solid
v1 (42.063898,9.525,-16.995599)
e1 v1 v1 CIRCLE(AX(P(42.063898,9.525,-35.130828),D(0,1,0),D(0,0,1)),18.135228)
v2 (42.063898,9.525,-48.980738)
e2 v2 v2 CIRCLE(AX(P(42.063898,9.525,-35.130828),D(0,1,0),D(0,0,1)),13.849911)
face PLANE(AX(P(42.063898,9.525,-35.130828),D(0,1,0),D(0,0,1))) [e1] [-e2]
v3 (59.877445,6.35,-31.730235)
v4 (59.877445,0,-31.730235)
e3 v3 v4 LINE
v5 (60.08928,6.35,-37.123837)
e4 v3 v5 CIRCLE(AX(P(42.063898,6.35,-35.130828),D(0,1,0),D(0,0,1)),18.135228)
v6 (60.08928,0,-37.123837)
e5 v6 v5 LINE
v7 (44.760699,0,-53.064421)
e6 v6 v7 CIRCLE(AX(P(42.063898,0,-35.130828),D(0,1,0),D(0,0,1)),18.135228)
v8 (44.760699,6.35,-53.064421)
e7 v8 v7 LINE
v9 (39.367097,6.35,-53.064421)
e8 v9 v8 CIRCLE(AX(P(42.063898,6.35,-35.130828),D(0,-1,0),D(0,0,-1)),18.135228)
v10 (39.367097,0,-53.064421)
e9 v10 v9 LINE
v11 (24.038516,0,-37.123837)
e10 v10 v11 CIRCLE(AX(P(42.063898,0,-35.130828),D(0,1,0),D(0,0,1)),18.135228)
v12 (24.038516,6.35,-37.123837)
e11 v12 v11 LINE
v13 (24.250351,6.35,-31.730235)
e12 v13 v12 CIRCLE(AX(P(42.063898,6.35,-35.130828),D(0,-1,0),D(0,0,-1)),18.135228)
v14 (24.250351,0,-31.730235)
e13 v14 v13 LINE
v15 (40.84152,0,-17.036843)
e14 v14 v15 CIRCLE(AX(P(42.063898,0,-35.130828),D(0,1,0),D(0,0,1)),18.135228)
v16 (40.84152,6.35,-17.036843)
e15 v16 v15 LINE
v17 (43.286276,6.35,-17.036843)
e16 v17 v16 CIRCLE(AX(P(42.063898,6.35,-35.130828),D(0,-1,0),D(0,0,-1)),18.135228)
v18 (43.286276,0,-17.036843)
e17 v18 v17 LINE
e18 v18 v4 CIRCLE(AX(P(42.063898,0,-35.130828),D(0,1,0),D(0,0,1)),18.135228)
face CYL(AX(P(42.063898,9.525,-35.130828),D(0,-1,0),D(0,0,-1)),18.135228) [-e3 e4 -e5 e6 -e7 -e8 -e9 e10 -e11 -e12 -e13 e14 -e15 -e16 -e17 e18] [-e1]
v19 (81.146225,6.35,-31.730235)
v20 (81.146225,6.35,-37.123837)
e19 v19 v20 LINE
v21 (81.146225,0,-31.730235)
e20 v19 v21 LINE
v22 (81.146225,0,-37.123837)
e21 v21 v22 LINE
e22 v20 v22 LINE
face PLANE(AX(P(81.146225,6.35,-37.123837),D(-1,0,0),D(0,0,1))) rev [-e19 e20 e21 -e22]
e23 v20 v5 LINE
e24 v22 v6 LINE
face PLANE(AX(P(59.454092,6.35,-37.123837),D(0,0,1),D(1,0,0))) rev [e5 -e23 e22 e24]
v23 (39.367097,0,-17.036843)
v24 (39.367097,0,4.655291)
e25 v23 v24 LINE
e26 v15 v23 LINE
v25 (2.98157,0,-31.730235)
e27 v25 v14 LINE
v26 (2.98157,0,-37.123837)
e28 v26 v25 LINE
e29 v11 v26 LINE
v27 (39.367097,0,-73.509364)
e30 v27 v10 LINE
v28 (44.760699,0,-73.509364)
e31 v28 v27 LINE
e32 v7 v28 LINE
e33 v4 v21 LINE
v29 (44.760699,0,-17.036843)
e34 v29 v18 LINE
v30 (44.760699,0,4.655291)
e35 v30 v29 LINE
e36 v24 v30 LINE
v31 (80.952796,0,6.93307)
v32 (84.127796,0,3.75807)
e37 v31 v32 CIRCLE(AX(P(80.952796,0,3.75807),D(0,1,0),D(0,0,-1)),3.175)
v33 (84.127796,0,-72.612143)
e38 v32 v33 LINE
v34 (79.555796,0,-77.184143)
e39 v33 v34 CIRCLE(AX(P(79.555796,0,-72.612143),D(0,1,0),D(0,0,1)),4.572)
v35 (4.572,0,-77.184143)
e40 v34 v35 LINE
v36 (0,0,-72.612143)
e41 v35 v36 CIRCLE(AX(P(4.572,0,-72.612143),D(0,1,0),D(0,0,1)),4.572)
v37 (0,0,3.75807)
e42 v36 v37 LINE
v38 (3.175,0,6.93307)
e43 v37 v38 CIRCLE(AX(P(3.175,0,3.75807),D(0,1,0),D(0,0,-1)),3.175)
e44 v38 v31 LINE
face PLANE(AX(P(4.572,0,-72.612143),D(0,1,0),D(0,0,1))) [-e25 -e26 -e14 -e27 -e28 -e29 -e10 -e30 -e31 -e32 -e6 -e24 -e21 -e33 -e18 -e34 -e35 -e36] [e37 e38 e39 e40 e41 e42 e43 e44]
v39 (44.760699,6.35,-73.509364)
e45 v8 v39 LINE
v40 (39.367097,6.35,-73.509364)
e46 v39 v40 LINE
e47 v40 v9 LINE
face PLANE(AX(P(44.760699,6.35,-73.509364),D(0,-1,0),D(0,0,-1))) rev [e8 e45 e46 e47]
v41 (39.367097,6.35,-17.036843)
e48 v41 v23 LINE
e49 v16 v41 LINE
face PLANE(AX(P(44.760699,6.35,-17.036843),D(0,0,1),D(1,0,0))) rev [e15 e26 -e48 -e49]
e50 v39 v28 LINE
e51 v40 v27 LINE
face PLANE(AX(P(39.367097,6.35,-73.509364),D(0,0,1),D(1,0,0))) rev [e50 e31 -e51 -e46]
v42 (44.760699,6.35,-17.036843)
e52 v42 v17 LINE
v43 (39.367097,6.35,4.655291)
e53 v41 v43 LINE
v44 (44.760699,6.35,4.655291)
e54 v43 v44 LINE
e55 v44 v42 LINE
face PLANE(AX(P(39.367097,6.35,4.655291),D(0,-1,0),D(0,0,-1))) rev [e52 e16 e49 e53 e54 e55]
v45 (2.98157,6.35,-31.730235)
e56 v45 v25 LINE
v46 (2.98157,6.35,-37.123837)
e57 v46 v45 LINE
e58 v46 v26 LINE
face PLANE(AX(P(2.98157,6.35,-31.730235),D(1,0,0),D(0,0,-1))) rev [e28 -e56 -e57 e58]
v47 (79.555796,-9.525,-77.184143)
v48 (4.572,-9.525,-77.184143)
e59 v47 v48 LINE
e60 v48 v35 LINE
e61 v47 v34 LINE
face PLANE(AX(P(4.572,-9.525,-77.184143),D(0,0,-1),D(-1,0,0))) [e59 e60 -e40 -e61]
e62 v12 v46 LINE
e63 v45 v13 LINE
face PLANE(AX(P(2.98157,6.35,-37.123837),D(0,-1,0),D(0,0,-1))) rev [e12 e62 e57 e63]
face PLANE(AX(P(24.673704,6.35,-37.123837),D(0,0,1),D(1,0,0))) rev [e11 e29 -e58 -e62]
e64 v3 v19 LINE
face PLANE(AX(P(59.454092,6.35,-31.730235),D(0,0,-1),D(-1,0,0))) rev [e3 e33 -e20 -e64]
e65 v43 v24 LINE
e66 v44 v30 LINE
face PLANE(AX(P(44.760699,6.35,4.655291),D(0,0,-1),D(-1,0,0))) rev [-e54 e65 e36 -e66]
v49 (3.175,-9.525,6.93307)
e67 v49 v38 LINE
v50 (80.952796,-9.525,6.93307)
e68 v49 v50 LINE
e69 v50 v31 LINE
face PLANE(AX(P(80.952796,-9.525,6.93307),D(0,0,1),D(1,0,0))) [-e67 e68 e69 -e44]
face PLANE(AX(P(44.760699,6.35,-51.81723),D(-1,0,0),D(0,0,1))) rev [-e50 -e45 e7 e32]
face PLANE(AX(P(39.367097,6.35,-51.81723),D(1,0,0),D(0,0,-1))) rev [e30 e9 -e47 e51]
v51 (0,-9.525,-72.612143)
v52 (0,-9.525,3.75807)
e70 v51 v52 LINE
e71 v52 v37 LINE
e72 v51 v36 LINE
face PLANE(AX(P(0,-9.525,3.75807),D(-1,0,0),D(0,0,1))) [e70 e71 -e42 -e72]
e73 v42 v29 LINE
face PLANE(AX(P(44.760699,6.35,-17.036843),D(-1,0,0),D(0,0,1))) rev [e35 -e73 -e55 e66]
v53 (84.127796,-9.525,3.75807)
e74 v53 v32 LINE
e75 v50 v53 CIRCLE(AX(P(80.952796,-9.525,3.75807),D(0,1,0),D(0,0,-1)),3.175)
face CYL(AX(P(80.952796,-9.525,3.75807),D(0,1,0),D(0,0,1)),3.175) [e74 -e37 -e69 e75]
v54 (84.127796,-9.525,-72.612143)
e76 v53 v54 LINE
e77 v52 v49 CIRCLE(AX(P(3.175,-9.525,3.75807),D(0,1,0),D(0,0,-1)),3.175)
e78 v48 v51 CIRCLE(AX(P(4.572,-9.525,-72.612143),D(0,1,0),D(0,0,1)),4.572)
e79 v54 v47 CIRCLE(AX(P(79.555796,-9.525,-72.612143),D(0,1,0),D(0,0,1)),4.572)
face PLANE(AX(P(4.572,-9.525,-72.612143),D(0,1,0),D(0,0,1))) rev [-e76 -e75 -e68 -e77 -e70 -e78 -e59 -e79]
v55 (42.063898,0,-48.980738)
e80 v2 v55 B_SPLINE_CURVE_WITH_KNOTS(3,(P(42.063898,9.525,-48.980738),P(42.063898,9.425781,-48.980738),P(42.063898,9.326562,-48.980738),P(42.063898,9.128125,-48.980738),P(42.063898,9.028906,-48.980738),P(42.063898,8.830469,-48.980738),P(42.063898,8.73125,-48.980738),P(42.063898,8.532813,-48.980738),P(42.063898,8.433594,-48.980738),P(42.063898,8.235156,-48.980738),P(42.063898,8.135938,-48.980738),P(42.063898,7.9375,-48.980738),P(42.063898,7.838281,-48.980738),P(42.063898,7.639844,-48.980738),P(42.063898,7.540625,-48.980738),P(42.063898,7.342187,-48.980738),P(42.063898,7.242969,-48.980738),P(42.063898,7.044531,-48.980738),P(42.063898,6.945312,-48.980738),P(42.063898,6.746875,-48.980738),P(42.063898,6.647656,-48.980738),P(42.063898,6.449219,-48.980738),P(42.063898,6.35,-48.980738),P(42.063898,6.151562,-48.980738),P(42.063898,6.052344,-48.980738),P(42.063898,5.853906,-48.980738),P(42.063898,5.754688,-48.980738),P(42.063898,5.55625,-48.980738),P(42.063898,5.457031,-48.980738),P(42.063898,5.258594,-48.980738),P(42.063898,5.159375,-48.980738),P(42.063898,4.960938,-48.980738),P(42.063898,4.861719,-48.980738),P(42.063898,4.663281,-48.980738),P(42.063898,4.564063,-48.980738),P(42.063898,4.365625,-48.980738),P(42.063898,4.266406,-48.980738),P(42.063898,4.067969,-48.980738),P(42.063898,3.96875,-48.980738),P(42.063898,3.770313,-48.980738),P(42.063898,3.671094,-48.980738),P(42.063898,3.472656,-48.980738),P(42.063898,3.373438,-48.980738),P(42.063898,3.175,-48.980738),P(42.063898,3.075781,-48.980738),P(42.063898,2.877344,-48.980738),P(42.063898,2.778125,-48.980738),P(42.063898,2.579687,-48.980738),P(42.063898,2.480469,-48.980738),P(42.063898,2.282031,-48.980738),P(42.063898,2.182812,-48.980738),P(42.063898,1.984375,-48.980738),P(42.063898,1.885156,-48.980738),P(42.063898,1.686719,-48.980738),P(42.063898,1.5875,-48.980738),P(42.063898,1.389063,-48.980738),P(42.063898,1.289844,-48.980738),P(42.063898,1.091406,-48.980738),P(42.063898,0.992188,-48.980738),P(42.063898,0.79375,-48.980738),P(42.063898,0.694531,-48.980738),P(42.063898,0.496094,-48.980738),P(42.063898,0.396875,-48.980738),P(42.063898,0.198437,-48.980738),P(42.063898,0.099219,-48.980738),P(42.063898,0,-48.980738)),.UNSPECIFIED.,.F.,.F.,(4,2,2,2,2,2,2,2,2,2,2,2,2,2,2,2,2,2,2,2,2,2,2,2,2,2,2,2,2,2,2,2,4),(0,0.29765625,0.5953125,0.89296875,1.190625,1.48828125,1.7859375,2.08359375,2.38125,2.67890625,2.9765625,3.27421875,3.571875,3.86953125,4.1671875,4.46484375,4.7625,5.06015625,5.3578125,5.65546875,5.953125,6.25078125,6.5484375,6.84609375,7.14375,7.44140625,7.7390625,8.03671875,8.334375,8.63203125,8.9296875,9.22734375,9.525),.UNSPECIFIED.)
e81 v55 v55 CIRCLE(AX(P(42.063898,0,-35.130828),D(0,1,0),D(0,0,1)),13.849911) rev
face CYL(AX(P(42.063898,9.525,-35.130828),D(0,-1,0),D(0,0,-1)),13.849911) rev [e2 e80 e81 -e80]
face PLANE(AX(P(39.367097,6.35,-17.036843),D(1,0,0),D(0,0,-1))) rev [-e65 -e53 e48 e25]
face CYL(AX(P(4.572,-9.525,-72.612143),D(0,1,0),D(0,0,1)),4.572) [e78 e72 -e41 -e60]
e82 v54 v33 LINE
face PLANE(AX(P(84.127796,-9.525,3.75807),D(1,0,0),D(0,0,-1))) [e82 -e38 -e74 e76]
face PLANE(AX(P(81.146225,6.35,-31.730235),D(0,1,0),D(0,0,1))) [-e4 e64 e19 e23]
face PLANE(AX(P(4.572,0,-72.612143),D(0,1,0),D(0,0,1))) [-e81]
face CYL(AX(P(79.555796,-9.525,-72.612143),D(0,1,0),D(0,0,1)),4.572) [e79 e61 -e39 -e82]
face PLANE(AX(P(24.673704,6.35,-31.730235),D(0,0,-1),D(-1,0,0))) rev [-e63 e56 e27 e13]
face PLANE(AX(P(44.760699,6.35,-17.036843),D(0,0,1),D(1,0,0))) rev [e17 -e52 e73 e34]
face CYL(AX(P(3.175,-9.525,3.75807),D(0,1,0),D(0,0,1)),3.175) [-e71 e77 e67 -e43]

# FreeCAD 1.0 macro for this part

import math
import FreeCAD as App
import Part
import Sketcher

V = App.Vector
Q = App.Units.Quantity


def add_polygon(sketch, points):
    """Adds a closed chain of lines whose ends are joined by coincident constraints."""
    first, n = sketch.GeometryCount, len(points)
    for a, b in zip(points, points[1:] + points[:1]):
        sketch.addGeometry(Part.LineSegment(App.Vector(*a, 0), App.Vector(*b, 0)), False)
    for i in range(n):
        sketch.addConstraint(Sketcher.Constraint("Coincident", first + i, 2, first + (i + 1) % n, 1))

doc = App.newDocument("Part")
params = doc.addObject("Spreadsheet::Sheet", "Params")
for row, (alias, value) in enumerate([
    ("sketch1_radius", "0.18 in"),
    ("sketch1_radius2", "0.125 in"),
    ("pad1_length", "0.375 in"),
    ("pad2_length", "0.375 in"),
    ("pad3_length", "0.25 in"),
], start=1):
    params.set(f"A{row}", alias)
    params.set(f"B{row}", "=" + value)
    params.setAlias(f"B{row}", alias)

body = doc.addObject("PartDesign::Body", "Body")

sketch1 = body.newObject("Sketcher::SketchObject", "Sketch")
sketch1.AttachmentSupport = (doc.getObject("XZ_Plane"), [""])
sketch1.MapMode = "FlatFace"
sketch1.addGeometry(Part.LineSegment(V(3.175, 6.93307, 0), V(80.952796, 6.93307, 0)), False)
sketch1.addGeometry(Part.ArcOfCircle(Part.Circle(V(80.952796, 3.75807, 0), V(0, 0, 1), 3.175), math.radians(0), math.radians(90)), False)
sketch1.addGeometry(Part.LineSegment(V(84.127796, 3.75807, 0), V(84.127796, -72.612143, 0)), False)
sketch1.addGeometry(Part.ArcOfCircle(Part.Circle(V(79.555796, -72.612143, 0), V(0, 0, 1), 4.572), math.radians(-90), math.radians(0)), False)
sketch1.addGeometry(Part.LineSegment(V(79.555796, -77.184143, 0), V(4.572, -77.184143, 0)), False)
sketch1.addGeometry(Part.ArcOfCircle(Part.Circle(V(4.572, -72.612143, 0), V(0, 0, 1), 4.572), math.radians(180), math.radians(270)), False)
sketch1.addGeometry(Part.LineSegment(V(0, -72.612143, 0), V(0, 3.75807, 0)), False)
sketch1.addGeometry(Part.ArcOfCircle(Part.Circle(V(3.175, 3.75807, 0), V(0, 0, 1), 3.175), math.radians(90), math.radians(180)), False)
sketch1.addConstraint(Sketcher.Constraint("Tangent", 0, 2, 1, 2))
sketch1.addConstraint(Sketcher.Constraint("Tangent", 1, 1, 2, 1))
sketch1.addConstraint(Sketcher.Constraint("Tangent", 2, 2, 3, 2))
sketch1.addConstraint(Sketcher.Constraint("Tangent", 3, 1, 4, 1))
sketch1.addConstraint(Sketcher.Constraint("Tangent", 4, 2, 5, 2))
sketch1.addConstraint(Sketcher.Constraint("Tangent", 5, 1, 6, 1))
sketch1.addConstraint(Sketcher.Constraint("Tangent", 6, 2, 7, 2))
sketch1.addConstraint(Sketcher.Constraint("Tangent", 7, 1, 0, 1))
sketch1.addConstraint(Sketcher.Constraint("Horizontal", 0))
sketch1.addConstraint(Sketcher.Constraint("Vertical", 2))
sketch1.addConstraint(Sketcher.Constraint("Horizontal", 4))
sketch1.addConstraint(Sketcher.Constraint("Vertical", 6))
sketch1.addConstraint(Sketcher.Constraint("Equal", 3, 5))
sketch1.addConstraint(Sketcher.Constraint("Equal", 1, 7))
sketch1.addConstraint(Sketcher.Constraint("PointOnObject", 5, 1, -2))
sketch1.addConstraint(Sketcher.Constraint("Radius", 3, Q("0.18 in")))
sketch1.addConstraint(Sketcher.Constraint("Radius", 1, Q("0.125 in")))
sketch1.addConstraint(Sketcher.Constraint("DistanceX", 0, 1, 0, 2, Q("77.777796 mm")))
sketch1.addConstraint(Sketcher.Constraint("DistanceY", 2, 2, 2, 1, Q("76.370213 mm")))
sketch1.addConstraint(Sketcher.Constraint("DistanceY", -1, 1, 1, 3, Q("3.75807 mm")))
sketch1.setExpression("Constraints[15]", "Params.sketch1_radius")
sketch1.setExpression("Constraints[16]", "Params.sketch1_radius2")
pad1 = body.newObject("PartDesign::Pad", "Pad")
pad1.Profile = sketch1
pad1.setExpression("Length", "Params.pad1_length")

sketch2 = body.newObject("Sketcher::SketchObject", "Sketch001")
sketch2.AttachmentSupport = (doc.getObject("XZ_Plane"), [""])
sketch2.MapMode = "FlatFace"
sketch2.addGeometry(Part.Circle(V(42.063898, -35.130828, 0), V(0, 0, 1), 18.135228), False)
sketch2.addGeometry(Part.Circle(V(42.063898, -35.130828, 0), V(0, 0, 1), 13.849911), False)
sketch2.addConstraint(Sketcher.Constraint("Coincident", 1, 3, 0, 3))
sketch2.addConstraint(Sketcher.Constraint("Diameter", 1, Q("27.699821 mm")))
sketch2.addConstraint(Sketcher.Constraint("Diameter", 0, Q("36.270456 mm")))
sketch2.addConstraint(Sketcher.Constraint("DistanceX", -1, 1, 0, 3, Q("42.063898 mm")))
sketch2.addConstraint(Sketcher.Constraint("DistanceY", 0, 3, -1, 1, Q("35.130828 mm")))
pad2 = body.newObject("PartDesign::Pad", "Pad001")
pad2.Profile = sketch2
pad2.setExpression("Length", "Params.pad2_length")
pad2.Reversed = True

sketch3 = body.newObject("Sketcher::SketchObject", "Sketch002")
sketch3.AttachmentSupport = (doc.getObject("XZ_Plane"), [""])
sketch3.MapMode = "FlatFace"
add_polygon(sketch3, [(59.454092, -37.123837), (59.454092, -31.730235), (81.146225, -31.730235), (81.146225, -37.123837)])
add_polygon(sketch3, [(39.367097, -17.036843), (39.367097, 4.655291), (44.760699, 4.655291), (44.760699, -17.036843)])
add_polygon(sketch3, [(2.98157, -37.123837), (2.98157, -31.730235), (24.673704, -31.730235), (24.673704, -37.123837)])
add_polygon(sketch3, [(39.367097, -73.509364), (39.367097, -51.81723), (44.760699, -51.81723), (44.760699, -73.509364)])
sketch3.addConstraint(Sketcher.Constraint("Vertical", 0))
sketch3.addConstraint(Sketcher.Constraint("Horizontal", 1))
sketch3.addConstraint(Sketcher.Constraint("Vertical", 2))
sketch3.addConstraint(Sketcher.Constraint("Horizontal", 3))
sketch3.addConstraint(Sketcher.Constraint("Vertical", 4))
sketch3.addConstraint(Sketcher.Constraint("Horizontal", 5))
sketch3.addConstraint(Sketcher.Constraint("Vertical", 6))
sketch3.addConstraint(Sketcher.Constraint("Horizontal", 7))
sketch3.addConstraint(Sketcher.Constraint("Vertical", 8))
sketch3.addConstraint(Sketcher.Constraint("Horizontal", 9))
sketch3.addConstraint(Sketcher.Constraint("Vertical", 10))
sketch3.addConstraint(Sketcher.Constraint("Horizontal", 11))
sketch3.addConstraint(Sketcher.Constraint("Vertical", 12))
sketch3.addConstraint(Sketcher.Constraint("Horizontal", 13))
sketch3.addConstraint(Sketcher.Constraint("Vertical", 14))
sketch3.addConstraint(Sketcher.Constraint("Horizontal", 15))
sketch3.addConstraint(Sketcher.Constraint("Horizontal", 1, 2, 8, 2))
sketch3.addConstraint(Sketcher.Constraint("Horizontal", 3, 2, 10, 2))
sketch3.addConstraint(Sketcher.Constraint("Vertical", 7, 2, 12, 2))
sketch3.addConstraint(Sketcher.Constraint("Vertical", 6, 2, 13, 2))
sketch3.addConstraint(Sketcher.Constraint("Equal", 3, 9))
sketch3.addConstraint(Sketcher.Constraint("Equal", 15, 0))
sketch3.addConstraint(Sketcher.Constraint("Equal", 11, 4))
sketch3.addConstraint(Sketcher.Constraint("Equal", 6, 12))
sketch3.addConstraint(Sketcher.Constraint("DistanceX", 5, 1, 5, 2, Q("5.393602 mm")))
sketch3.addConstraint(Sketcher.Constraint("DistanceX", -1, 1, 5, 2, Q("44.760699 mm")))
sketch3.addConstraint(Sketcher.Constraint("DistanceX", 1, 1, 1, 2, Q("21.692134 mm")))
sketch3.addConstraint(Sketcher.Constraint("DistanceX", -1, 1, 0, 2, Q("59.454092 mm")))
sketch3.addConstraint(Sketcher.Constraint("DistanceY", -1, 1, 4, 2, Q("4.655291 mm")))
sketch3.addConstraint(Sketcher.Constraint("DistanceX", -1, 1, 8, 2, Q("2.98157 mm")))
sketch3.addConstraint(Sketcher.Constraint("DistanceY", 12, 2, -1, 1, Q("51.81723 mm")))
sketch3.addConstraint(Sketcher.Constraint("DistanceY", 3, 2, 4, 2, Q("41.779129 mm")))
pad3 = body.newObject("PartDesign::Pad", "Pad002")
pad3.Profile = sketch3
pad3.setExpression("Length", "Params.pad3_length")
pad3.Reversed = True

doc.recompute()
